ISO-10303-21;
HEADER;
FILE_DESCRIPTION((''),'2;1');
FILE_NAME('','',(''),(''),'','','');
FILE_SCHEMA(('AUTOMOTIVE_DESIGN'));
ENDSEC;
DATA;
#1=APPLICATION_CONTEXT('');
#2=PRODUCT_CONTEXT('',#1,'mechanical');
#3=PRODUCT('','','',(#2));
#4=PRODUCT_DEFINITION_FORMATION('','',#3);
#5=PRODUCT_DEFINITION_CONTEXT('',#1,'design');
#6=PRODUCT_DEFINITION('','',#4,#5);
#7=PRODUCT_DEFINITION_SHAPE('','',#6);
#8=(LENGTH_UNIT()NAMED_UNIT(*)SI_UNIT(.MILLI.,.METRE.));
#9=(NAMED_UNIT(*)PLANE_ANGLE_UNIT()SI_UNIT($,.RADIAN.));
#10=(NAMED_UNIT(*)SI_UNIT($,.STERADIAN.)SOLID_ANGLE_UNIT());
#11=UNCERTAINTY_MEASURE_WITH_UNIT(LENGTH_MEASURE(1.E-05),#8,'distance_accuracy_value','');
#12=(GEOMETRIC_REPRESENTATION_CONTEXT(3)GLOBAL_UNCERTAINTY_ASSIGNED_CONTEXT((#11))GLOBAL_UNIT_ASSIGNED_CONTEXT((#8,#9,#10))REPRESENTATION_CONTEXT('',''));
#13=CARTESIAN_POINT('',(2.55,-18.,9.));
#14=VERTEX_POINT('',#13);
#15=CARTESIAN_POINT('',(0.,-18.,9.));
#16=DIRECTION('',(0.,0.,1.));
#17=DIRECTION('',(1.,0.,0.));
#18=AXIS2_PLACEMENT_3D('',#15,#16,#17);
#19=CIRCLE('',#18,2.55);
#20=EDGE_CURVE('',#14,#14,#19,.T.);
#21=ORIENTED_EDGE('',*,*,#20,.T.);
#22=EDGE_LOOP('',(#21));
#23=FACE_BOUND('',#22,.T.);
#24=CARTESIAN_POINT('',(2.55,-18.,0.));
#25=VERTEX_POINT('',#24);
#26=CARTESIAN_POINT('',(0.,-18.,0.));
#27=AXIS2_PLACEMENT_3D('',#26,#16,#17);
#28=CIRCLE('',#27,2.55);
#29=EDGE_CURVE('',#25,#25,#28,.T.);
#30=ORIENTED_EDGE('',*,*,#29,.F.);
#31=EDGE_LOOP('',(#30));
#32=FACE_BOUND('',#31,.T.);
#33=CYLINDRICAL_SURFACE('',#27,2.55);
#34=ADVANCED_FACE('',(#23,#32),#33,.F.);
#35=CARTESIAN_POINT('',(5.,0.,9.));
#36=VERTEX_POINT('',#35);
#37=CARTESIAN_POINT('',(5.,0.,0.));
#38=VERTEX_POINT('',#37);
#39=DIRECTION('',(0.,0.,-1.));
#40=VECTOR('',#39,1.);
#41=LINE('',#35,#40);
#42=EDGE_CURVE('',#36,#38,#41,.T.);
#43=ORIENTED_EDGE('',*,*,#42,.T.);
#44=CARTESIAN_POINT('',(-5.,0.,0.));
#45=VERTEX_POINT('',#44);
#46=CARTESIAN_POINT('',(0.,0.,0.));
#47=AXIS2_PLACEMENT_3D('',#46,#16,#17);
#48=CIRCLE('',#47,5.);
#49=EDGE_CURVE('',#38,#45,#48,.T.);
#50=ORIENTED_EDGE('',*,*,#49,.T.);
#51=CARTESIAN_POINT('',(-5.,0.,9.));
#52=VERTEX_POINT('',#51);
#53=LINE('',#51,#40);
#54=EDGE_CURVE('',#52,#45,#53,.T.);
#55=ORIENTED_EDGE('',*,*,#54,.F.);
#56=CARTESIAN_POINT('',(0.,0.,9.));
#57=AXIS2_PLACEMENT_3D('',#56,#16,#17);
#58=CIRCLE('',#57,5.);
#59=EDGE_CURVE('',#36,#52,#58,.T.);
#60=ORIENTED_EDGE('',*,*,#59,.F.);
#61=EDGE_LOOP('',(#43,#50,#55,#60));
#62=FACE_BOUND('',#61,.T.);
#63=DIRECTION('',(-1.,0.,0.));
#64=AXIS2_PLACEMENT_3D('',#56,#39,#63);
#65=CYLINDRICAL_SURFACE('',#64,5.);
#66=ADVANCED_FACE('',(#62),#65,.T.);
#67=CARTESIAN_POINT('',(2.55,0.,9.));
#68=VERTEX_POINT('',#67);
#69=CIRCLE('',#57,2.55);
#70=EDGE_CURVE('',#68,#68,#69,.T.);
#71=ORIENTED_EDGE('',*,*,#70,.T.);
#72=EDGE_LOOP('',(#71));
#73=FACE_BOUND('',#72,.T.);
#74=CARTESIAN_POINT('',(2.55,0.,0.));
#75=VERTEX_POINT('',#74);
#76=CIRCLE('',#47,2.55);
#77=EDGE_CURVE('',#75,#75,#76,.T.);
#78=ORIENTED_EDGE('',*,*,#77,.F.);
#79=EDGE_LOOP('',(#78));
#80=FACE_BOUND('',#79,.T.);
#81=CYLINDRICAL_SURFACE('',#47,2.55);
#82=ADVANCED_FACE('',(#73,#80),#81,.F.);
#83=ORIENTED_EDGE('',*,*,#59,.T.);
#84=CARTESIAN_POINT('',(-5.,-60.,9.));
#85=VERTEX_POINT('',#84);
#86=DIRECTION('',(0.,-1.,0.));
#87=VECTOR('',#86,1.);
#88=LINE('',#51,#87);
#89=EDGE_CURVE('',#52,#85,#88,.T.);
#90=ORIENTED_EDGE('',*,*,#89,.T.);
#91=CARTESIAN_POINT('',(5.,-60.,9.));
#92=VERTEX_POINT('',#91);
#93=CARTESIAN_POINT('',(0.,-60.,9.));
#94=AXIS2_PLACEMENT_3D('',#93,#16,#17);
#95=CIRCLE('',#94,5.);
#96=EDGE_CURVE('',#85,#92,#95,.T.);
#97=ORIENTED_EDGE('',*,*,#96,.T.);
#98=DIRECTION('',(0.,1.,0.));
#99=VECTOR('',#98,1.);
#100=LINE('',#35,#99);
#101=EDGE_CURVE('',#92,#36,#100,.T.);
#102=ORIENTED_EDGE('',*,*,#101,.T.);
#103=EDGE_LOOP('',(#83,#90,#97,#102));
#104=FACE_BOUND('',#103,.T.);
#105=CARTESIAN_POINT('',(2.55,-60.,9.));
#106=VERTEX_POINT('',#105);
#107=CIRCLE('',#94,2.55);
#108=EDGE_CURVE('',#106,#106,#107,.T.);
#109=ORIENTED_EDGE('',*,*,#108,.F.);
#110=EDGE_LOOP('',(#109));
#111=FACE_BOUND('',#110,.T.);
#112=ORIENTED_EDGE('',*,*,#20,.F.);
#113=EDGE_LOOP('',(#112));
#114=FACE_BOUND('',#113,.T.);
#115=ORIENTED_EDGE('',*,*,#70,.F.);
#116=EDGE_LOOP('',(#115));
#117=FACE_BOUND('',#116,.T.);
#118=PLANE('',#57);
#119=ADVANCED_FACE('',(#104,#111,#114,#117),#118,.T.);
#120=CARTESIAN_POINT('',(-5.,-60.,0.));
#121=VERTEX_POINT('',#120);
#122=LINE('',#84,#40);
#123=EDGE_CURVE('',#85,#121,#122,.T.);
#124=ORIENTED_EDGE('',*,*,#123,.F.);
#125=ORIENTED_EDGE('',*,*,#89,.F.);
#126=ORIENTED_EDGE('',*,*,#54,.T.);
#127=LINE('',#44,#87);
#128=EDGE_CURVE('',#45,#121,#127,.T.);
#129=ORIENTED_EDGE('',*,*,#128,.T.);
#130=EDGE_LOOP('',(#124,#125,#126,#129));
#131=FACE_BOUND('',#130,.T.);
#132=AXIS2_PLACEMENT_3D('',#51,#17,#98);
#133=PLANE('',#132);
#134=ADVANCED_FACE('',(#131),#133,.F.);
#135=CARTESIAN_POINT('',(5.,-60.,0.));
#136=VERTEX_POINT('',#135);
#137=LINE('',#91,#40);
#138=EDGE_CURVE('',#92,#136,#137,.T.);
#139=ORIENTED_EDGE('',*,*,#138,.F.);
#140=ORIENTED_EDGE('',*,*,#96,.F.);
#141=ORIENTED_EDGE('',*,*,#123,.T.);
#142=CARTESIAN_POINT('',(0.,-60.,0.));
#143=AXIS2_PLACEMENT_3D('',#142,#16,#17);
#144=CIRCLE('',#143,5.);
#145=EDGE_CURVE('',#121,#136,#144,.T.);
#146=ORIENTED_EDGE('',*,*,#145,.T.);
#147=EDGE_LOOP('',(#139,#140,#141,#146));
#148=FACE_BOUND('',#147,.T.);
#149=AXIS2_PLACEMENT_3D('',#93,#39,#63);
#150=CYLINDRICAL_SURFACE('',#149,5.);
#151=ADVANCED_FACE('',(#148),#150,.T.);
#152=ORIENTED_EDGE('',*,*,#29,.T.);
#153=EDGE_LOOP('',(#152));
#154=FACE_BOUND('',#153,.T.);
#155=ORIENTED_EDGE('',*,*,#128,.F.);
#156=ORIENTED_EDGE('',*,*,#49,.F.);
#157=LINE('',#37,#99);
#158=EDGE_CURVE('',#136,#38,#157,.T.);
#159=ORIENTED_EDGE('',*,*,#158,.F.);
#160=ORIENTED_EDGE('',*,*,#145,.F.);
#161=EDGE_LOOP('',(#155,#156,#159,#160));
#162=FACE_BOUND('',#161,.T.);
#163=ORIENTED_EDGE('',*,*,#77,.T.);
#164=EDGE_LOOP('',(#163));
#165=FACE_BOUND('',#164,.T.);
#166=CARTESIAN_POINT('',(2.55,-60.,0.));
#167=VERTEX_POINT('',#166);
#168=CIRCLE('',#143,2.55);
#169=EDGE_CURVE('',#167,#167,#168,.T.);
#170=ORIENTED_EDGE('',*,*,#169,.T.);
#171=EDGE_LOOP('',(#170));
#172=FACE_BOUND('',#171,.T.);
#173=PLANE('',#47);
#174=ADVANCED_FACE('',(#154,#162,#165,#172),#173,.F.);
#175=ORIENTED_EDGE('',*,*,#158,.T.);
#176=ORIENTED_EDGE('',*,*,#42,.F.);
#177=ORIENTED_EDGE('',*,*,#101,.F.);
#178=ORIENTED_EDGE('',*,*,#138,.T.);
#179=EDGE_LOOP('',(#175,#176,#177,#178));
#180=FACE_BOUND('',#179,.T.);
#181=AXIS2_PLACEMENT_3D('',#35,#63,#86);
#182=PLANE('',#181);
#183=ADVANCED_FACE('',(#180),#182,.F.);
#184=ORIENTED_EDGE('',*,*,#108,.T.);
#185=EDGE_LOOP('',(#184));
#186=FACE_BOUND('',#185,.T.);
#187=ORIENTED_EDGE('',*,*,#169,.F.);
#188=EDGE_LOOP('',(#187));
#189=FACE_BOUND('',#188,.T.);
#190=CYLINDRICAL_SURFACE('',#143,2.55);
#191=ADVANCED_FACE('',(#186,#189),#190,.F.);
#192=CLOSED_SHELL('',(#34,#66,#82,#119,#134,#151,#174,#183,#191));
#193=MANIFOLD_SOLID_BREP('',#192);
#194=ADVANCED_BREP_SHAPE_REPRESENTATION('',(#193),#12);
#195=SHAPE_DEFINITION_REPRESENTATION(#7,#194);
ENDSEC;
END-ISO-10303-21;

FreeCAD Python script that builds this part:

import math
import FreeCAD as App
import Part
import Sketcher
Q = App.Units.Quantity

doc = App.newDocument("Part")
body = doc.addObject("PartDesign::Body", "Body")

# Sketch on XY plane
sketch1 = body.newObject("Sketcher::SketchObject", "Sketch")
sketch1.AttachmentSupport = (doc.getObject("XY_Plane"), [""])
sketch1.MapMode = "FlatFace"
sketch1.addGeometry([
    Part.LineSegment(App.Vector(-5, 0, 0), App.Vector(-5, -60, 0)),
    Part.ArcOfCircle(Part.Circle(App.Vector(0, -60, 0), App.Vector(0, 0, 1), 5), math.radians(180), math.radians(360)),
    Part.LineSegment(App.Vector(5, -60, 0), App.Vector(5, 0, 0)),
    Part.ArcOfCircle(Part.Circle(App.Vector(0, 0, 0), App.Vector(0, 0, 1), 5), math.radians(0), math.radians(180)),
], False)
sketch1.addConstraint([
    Sketcher.Constraint("Tangent", 0, 2, 1, 1),
    Sketcher.Constraint("Tangent", 1, 2, 2, 1),
    Sketcher.Constraint("Tangent", 2, 2, 3, 1),
    Sketcher.Constraint("Tangent", 3, 2, 0, 1),
    Sketcher.Constraint("Vertical", 0),
    Sketcher.Constraint("Vertical", 2),
    Sketcher.Constraint("Coincident", 3, 3, -1, 1),
    Sketcher.Constraint("Radius", 1, Q("5 mm")),
    Sketcher.Constraint("DistanceY", 0, 2, 0, 1, Q("60 mm")),
])
pad1 = body.newObject("PartDesign::Pad", "Pad")
pad1.Profile = sketch1
pad1.Length = 9

# Sketch on XY plane
sketch2 = body.newObject("Sketcher::SketchObject", "Sketch001")
sketch2.AttachmentSupport = (doc.getObject("XY_Plane"), [""])
sketch2.MapMode = "FlatFace"
sketch2.AttachmentOffset = App.Placement(App.Vector(0, 0, 9), App.Rotation())
sketch2.addGeometry([
    Part.Circle(App.Vector(0, 0, 0), App.Vector(0, 0, 1), 2.5),
    Part.Circle(App.Vector(0, -60, 0), App.Vector(0, 0, 1), 2.5),
    Part.Circle(App.Vector(0, -18, 0), App.Vector(0, 0, 1), 2.5),
], False)
sketch2.addConstraint([
    Sketcher.Constraint("Coincident", 0, 3, -1, 1),
    Sketcher.Constraint("Equal", 0, 1),
    Sketcher.Constraint("Equal", 1, 2),
    Sketcher.Constraint("PointOnObject", 1, 3, -2),
    Sketcher.Constraint("PointOnObject", 2, 3, -2),
    Sketcher.Constraint("Diameter", 0, Q("5.1 mm")),
    Sketcher.Constraint("DistanceY", 1, 3, -1, 1, Q("60 mm")),
    Sketcher.Constraint("DistanceY", 2, 3, -1, 1, Q("18 mm")),
])
pocket1 = body.newObject("PartDesign::Pocket", "Pocket")
pocket1.Profile = sketch2
pocket1.Type = "ThroughAll"

doc.recompute()
